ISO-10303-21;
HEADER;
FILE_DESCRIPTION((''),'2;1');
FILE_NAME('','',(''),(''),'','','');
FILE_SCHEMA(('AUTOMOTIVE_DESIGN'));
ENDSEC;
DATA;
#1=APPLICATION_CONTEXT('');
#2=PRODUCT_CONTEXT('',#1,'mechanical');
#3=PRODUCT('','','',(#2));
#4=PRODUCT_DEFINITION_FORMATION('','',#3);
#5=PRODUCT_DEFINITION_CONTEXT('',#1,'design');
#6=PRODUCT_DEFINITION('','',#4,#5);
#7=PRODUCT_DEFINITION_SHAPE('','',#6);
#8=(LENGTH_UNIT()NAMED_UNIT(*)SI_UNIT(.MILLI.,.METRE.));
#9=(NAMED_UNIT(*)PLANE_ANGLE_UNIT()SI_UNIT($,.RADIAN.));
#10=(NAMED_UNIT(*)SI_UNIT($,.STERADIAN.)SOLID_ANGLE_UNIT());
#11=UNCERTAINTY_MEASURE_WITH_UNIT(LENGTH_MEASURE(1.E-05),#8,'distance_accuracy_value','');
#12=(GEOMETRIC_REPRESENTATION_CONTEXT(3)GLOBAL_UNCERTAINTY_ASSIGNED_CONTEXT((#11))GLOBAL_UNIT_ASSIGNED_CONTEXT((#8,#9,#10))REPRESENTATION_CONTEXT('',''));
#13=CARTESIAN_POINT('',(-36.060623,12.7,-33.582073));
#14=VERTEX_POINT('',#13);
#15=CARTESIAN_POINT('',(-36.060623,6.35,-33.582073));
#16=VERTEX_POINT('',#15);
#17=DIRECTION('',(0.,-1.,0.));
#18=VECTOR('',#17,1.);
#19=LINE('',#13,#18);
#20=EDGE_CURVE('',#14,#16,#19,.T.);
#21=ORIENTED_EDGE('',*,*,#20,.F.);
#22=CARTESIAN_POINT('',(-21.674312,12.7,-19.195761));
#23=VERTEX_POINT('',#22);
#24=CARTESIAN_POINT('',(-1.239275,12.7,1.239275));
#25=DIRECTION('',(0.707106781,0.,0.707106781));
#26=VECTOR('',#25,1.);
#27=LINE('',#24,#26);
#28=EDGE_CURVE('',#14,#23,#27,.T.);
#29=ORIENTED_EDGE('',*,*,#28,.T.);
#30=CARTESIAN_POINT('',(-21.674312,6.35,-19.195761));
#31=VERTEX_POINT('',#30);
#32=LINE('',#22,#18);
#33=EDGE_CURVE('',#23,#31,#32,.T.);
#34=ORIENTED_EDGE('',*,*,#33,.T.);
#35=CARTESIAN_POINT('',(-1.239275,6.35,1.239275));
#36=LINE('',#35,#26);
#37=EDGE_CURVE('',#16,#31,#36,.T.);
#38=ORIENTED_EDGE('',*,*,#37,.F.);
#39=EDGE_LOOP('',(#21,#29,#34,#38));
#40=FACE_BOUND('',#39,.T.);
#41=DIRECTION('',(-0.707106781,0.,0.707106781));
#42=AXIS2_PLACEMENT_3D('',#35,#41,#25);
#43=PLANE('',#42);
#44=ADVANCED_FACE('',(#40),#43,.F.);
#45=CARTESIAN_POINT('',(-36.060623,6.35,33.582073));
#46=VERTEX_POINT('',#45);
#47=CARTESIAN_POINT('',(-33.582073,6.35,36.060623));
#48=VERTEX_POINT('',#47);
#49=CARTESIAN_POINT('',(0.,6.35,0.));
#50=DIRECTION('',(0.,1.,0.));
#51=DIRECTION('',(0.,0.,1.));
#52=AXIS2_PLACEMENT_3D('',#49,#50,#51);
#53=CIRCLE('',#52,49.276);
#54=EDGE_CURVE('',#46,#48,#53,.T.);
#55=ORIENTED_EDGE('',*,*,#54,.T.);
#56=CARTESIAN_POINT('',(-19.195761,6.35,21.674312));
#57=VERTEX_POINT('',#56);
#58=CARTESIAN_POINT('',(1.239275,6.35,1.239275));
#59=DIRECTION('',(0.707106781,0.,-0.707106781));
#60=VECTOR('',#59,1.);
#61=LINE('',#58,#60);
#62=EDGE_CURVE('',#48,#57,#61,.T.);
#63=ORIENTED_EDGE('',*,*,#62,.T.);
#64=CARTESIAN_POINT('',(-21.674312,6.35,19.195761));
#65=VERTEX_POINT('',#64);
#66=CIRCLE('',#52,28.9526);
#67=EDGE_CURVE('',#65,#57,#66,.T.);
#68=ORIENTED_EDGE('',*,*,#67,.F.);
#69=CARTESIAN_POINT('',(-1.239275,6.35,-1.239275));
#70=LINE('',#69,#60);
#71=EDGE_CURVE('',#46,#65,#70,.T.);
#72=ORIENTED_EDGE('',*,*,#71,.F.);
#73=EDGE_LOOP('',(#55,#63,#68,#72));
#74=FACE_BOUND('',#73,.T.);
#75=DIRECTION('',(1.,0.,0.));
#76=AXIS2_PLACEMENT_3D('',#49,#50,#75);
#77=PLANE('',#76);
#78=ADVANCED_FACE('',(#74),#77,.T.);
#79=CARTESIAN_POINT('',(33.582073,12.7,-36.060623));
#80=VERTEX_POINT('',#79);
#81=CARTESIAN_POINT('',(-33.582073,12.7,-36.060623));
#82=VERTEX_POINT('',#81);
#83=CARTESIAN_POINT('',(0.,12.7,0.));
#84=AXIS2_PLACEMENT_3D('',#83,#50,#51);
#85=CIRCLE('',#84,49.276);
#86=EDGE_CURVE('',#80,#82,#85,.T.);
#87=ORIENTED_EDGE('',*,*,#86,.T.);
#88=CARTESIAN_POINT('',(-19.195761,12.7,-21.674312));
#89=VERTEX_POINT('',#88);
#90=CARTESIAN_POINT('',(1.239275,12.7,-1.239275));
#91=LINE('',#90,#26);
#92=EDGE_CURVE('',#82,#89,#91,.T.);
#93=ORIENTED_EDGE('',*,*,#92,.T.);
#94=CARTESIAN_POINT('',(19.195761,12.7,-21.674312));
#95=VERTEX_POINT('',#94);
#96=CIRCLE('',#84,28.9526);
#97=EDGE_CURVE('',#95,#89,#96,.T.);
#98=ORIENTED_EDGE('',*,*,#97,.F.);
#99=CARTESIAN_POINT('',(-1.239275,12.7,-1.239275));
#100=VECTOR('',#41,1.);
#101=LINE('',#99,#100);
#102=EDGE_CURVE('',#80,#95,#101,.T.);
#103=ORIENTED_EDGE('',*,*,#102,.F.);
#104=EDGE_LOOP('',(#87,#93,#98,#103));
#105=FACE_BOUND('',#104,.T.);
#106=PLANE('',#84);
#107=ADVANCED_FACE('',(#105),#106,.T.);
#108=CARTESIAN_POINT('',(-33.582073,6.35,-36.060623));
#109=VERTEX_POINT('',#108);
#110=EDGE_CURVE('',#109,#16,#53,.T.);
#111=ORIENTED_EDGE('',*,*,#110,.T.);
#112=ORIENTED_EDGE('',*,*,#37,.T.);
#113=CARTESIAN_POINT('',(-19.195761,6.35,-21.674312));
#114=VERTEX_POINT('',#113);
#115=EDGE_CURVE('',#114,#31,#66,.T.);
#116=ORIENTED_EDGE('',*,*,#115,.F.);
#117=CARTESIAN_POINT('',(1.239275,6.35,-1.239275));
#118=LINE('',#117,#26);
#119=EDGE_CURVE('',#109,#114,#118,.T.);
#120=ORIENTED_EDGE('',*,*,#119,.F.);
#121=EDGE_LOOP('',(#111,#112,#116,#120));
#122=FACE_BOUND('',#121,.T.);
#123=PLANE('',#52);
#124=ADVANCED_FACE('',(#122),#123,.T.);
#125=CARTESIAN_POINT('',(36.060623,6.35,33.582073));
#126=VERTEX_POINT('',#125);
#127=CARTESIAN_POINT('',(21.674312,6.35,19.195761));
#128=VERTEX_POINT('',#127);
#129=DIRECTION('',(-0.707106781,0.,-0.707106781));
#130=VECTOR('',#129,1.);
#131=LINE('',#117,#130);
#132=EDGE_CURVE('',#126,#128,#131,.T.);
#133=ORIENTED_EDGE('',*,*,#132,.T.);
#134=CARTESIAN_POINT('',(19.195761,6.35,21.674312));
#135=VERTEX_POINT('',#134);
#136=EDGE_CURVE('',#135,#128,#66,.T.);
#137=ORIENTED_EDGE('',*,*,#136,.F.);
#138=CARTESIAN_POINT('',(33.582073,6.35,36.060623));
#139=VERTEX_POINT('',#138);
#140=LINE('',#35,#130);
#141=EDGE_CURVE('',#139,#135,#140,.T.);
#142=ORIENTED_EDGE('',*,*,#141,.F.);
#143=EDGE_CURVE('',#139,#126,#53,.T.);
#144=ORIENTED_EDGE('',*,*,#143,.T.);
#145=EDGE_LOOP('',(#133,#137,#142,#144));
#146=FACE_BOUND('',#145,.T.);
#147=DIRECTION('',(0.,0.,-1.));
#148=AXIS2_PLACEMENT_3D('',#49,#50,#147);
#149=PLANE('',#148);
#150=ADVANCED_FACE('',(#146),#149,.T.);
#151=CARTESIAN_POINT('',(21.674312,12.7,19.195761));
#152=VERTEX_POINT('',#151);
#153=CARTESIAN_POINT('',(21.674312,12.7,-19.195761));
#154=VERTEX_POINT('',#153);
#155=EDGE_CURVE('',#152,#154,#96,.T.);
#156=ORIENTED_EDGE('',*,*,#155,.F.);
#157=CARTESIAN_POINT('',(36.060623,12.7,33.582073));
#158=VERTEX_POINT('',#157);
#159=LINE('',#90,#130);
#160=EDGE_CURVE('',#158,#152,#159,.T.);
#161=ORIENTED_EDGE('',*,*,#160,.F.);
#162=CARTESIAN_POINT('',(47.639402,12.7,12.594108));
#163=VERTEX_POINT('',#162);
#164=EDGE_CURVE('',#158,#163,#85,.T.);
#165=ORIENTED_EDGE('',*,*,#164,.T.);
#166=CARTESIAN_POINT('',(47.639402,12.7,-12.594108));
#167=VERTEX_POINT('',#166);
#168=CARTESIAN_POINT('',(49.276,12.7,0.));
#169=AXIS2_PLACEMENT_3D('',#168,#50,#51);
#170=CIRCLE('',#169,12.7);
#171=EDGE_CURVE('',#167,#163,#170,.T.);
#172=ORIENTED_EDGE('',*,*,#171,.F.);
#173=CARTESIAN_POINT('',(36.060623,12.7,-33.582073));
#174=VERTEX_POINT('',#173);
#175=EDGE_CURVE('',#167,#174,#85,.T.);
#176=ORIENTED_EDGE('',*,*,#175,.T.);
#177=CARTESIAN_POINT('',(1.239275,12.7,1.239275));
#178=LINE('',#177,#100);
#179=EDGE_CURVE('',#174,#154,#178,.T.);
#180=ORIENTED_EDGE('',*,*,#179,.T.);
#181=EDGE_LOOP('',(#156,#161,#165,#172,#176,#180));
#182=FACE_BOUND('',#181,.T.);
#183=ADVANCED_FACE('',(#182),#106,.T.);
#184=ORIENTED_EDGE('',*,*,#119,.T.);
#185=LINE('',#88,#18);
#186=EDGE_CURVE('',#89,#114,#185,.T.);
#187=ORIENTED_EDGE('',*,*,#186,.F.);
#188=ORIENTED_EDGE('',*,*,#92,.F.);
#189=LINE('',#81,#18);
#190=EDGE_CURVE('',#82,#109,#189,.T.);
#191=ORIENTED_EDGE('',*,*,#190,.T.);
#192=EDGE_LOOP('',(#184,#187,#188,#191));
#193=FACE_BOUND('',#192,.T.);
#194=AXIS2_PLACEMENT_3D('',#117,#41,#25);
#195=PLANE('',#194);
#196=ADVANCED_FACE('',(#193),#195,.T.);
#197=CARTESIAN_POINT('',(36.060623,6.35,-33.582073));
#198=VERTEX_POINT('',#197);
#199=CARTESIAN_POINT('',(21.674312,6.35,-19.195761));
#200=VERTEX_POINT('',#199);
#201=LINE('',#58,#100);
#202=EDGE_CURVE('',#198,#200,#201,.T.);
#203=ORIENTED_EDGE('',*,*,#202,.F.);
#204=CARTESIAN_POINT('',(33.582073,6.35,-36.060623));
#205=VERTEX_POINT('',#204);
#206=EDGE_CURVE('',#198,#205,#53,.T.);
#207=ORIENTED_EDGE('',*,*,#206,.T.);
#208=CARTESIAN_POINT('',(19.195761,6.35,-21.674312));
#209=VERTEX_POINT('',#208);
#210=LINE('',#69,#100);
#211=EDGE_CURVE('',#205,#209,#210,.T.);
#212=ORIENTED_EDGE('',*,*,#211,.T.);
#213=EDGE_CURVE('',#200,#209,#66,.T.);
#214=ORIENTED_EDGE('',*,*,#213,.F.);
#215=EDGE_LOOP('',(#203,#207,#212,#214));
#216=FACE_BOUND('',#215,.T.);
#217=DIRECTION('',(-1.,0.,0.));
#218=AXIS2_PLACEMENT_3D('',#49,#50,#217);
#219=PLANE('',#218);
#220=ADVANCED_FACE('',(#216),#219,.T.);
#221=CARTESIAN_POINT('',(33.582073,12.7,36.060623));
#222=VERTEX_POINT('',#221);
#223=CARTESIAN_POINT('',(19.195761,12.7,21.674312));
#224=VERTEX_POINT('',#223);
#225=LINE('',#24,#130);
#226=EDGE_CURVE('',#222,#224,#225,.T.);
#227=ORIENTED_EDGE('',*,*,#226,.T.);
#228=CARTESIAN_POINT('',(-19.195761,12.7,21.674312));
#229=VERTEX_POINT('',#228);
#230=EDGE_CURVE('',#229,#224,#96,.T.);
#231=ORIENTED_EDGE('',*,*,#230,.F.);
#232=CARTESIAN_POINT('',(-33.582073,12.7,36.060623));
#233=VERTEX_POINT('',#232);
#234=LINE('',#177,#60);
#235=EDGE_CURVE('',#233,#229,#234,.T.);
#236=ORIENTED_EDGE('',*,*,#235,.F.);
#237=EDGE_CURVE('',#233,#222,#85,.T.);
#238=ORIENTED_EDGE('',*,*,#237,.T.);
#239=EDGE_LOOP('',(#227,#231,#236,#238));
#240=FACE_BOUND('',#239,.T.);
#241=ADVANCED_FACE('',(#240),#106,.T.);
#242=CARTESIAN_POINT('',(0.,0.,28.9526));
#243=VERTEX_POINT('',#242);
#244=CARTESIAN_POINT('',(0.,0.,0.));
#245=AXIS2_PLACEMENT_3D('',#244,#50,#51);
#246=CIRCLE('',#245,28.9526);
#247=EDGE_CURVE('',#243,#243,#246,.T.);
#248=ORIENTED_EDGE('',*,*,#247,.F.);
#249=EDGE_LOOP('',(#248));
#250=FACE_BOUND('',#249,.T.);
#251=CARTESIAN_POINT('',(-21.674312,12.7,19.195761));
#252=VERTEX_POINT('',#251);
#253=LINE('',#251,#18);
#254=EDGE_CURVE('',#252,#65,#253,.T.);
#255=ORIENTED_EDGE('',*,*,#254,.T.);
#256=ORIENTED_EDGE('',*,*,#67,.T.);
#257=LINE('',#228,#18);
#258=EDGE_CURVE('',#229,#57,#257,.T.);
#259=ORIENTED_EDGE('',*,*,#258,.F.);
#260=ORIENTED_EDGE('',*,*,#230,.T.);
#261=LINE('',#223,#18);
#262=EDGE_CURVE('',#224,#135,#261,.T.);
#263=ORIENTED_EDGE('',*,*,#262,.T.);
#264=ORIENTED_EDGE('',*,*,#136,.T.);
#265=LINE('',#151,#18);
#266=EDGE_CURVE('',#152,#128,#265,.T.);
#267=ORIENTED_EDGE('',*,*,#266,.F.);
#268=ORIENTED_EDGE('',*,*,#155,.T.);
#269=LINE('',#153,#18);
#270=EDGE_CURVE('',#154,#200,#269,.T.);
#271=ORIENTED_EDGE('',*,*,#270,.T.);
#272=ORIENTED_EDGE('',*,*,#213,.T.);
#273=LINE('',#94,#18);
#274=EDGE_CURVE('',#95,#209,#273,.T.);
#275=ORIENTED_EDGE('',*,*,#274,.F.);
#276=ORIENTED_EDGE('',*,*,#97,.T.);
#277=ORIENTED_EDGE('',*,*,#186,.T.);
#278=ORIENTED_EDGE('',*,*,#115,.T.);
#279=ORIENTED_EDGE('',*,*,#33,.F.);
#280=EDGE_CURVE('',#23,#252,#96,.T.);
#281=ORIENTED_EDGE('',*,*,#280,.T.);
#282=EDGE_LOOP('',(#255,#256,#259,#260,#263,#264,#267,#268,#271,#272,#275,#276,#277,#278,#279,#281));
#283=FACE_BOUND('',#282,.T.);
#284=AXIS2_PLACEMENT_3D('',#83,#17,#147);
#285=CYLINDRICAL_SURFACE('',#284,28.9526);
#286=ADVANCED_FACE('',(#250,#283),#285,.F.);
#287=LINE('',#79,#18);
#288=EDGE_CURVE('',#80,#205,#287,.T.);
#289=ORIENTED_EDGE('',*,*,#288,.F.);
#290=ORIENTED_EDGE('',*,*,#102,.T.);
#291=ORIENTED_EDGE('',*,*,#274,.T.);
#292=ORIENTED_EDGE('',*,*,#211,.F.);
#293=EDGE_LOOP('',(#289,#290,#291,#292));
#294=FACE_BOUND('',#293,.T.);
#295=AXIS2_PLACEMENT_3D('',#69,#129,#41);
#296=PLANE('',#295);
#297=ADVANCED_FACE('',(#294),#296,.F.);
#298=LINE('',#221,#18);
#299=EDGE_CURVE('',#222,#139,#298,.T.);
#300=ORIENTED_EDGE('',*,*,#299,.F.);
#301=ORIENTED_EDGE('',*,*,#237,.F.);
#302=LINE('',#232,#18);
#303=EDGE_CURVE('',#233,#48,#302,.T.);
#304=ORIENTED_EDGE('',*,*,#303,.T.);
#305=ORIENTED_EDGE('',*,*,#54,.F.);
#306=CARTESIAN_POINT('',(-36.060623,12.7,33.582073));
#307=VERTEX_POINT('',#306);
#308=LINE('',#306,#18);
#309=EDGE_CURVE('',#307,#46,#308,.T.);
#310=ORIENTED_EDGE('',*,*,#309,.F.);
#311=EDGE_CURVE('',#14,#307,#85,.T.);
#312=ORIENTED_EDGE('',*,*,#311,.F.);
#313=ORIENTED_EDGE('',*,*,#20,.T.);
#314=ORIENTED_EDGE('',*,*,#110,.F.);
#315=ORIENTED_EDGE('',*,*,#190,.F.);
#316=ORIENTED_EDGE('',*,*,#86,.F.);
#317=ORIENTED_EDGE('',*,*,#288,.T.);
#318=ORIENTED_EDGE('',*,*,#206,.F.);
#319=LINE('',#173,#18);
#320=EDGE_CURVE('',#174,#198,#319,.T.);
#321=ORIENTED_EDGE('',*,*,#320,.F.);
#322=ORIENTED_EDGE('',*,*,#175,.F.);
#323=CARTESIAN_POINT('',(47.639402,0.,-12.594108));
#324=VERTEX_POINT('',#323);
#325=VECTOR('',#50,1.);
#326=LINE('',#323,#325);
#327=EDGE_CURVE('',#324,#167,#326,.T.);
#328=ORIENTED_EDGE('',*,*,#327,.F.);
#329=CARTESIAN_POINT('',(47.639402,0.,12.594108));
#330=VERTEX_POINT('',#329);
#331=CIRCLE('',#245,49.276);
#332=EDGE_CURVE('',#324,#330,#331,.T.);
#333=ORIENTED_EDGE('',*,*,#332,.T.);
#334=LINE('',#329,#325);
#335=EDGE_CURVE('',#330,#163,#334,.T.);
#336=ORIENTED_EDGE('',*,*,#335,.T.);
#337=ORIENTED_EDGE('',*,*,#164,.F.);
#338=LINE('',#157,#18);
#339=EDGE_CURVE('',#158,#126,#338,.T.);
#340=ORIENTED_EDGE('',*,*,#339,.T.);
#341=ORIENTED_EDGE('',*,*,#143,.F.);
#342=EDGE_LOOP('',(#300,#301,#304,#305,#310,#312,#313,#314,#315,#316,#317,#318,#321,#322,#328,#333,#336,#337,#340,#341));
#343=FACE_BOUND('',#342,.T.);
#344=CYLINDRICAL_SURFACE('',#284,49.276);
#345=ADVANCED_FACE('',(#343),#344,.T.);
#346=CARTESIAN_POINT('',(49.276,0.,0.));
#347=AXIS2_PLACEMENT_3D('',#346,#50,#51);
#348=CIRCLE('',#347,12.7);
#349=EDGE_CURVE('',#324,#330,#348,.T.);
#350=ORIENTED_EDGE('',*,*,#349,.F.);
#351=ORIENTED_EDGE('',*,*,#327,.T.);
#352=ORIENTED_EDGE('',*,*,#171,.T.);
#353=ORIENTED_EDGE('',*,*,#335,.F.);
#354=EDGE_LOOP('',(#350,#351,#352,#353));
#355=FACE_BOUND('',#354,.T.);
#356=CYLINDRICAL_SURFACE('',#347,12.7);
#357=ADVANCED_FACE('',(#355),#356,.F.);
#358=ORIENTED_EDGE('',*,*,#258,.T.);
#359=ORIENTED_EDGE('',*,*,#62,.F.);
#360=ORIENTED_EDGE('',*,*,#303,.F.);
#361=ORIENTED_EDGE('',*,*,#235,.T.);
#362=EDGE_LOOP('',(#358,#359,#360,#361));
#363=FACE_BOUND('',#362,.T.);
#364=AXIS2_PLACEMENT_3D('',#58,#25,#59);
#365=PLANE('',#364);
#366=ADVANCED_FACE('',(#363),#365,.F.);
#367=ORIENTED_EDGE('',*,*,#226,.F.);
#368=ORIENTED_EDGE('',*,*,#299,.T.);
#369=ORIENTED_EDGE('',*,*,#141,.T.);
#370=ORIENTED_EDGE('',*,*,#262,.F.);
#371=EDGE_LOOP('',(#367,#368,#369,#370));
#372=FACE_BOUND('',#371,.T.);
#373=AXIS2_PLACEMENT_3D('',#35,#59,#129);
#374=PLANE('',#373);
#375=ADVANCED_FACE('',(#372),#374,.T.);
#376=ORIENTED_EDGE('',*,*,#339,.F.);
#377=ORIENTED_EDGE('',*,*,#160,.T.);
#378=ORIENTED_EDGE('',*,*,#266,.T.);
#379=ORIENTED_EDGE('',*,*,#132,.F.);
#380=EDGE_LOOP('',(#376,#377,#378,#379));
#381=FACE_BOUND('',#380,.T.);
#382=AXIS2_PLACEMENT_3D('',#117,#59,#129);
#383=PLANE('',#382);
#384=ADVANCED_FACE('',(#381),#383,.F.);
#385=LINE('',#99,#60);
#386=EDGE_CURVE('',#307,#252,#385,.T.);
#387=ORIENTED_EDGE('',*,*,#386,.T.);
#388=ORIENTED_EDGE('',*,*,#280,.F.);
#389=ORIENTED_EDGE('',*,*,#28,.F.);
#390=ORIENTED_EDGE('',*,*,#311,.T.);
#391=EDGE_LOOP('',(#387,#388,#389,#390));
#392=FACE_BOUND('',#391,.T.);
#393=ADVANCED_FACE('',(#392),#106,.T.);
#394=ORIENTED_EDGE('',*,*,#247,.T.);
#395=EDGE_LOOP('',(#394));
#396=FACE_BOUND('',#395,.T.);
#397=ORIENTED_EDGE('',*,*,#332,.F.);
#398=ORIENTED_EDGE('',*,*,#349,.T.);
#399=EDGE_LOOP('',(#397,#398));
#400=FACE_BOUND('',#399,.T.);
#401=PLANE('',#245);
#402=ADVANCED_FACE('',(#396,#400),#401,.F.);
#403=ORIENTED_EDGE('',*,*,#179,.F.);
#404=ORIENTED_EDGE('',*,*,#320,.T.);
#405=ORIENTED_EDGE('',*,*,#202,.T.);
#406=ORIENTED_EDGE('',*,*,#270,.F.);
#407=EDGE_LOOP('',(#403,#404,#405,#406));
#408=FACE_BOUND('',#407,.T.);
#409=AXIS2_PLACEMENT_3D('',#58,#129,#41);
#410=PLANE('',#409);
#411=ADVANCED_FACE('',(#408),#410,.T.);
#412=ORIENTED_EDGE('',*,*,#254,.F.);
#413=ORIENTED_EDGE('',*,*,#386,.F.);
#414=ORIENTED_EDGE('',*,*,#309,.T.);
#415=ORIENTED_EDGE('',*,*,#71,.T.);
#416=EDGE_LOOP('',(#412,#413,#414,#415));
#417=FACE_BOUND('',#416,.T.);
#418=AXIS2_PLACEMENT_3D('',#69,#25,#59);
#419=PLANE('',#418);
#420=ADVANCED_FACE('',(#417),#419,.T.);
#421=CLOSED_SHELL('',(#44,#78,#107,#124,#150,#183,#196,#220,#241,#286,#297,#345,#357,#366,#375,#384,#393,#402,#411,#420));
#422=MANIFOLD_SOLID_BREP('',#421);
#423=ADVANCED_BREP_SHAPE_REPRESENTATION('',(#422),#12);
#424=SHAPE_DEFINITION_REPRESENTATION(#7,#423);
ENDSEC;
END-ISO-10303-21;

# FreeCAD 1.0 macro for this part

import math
import FreeCAD as App
import Part
import Sketcher
from FreeCAD import Vector
Q = App.Units.Quantity

doc = App.newDocument("Part")
body = doc.addObject("PartDesign::Body", "Body")

# Sketch on XZ plane
sketch1 = body.newObject("Sketcher::SketchObject", "Sketch")
sketch1.AttachmentSupport = (doc.getObject("XZ_Plane"), [""])
sketch1.MapMode = "FlatFace"
sketch1.addGeometry(Part.Circle(Vector(0, 0, 0), Vector(0, 0, 1), 49), False)
sketch1.addConstraint(Sketcher.Constraint("Coincident", 0, 3, -1, 1))
sketch1.addConstraint(Sketcher.Constraint("Diameter", 0, Q("3.88 in")))
pad1 = body.newObject("PartDesign::Pad", "Pad")
pad1.Profile = sketch1
pad1.Length = Q("0.5 in")
pad1.Reversed = True

# Sketch on XZ plane
sketch2 = body.newObject("Sketcher::SketchObject", "Sketch001")
sketch2.AttachmentSupport = (doc.getObject("XZ_Plane"), [""])
sketch2.MapMode = "FlatFace"
sketch2.addGeometry(Part.Circle(Vector(0, 0, 0), Vector(0, 0, 1), 29), False)
sketch2.addConstraint(Sketcher.Constraint("Coincident", 0, 3, -1, 1))
sketch2.addConstraint(Sketcher.Constraint("Diameter", 0, 57.9052))
pocket1 = body.newObject("PartDesign::Pocket", "Pocket")
pocket1.Profile = sketch2
pocket1.Type = "ThroughAll"

# Sketch on XZ plane
sketch3 = body.newObject("Sketcher::SketchObject", "Sketch002")
sketch3.AttachmentSupport = (doc.getObject("XZ_Plane"), [""])
sketch3.MapMode = "FlatFace"
sketch3.AttachmentOffset = App.Placement(Vector(0, 0, -0.5 * 25.4), App.Rotation())
sketch3.addGeometry(Part.Circle(Vector(49, 0, 0), Vector(0, 0, 1), 13), False)
sketch3.addConstraint(Sketcher.Constraint("PointOnObject", 0, 3, -1))
sketch3.addConstraint(Sketcher.Constraint("Diameter", 0, Q("1 in")))
sketch3.addConstraint(Sketcher.Constraint("DistanceX", -1, 1, 0, 3, Q("1.94 in")))
pocket2 = body.newObject("PartDesign::Pocket", "Pocket001")
pocket2.Profile = sketch3
pocket2.Type = "ThroughAll"
pocket2.Reversed = True

# Sketch on XZ plane
sketch4 = body.newObject("Sketcher::SketchObject", "Sketch003")
sketch4.AttachmentSupport = (doc.getObject("XZ_Plane"), [""])
sketch4.MapMode = "FlatFace"
sketch4.AttachmentOffset = App.Placement(Vector(0, 0, -0.5 * 25.4), App.Rotation())
sketch4.addGeometry(Part.ArcOfCircle(Part.Circle(Vector(0, 0, 0), Vector(0, 0, 1), 29), math.radians(0), math.radians(222)), False)
sketch4.addGeometry(Part.ArcOfCircle(Part.Circle(Vector(0, 0, 0), Vector(0, 0, 1), 29), math.radians(-132), math.radians(0)), False)
sketch4.addGeometry(Part.LineSegment(Vector(-19.2, -21.7, 0), Vector(-34.9, -37.4, 0)), False)
sketch4.addGeometry(Part.LineSegment(Vector(-34.9, -37.4, 0), Vector(-37.4, -34.9, 0)), False)
sketch4.addGeometry(Part.LineSegment(Vector(-37.4, -34.9, 0), Vector(-21.7, -19.2, 0)), False)
sketch4.addConstraint(Sketcher.Constraint("Tangent", 0, 1, 1, 2))
sketch4.addConstraint(Sketcher.Constraint("Coincident", 1, 1, 2, 1))
sketch4.addConstraint(Sketcher.Constraint("Coincident", 2, 2, 3, 1))
sketch4.addConstraint(Sketcher.Constraint("Coincident", 3, 2, 4, 1))
sketch4.addConstraint(Sketcher.Constraint("Coincident", 4, 2, 0, 2))
sketch4.addConstraint(Sketcher.Constraint("Coincident", 0, 3, -1, 1))
sketch4.addConstraint(Sketcher.Constraint("Equal", 0, 1))
sketch4.addConstraint(Sketcher.Constraint("PointOnObject", 0, 1, -1))
sketch4.addConstraint(Sketcher.Constraint("Perpendicular", 2, 3))
sketch4.addConstraint(Sketcher.Constraint("Perpendicular", 3, 4))
sketch4.addConstraint(Sketcher.Constraint("Equal", 2, 4))
sketch4.addConstraint(Sketcher.Constraint("Angle", 2, Q("-135 deg")))
sketch4.addConstraint(Sketcher.Constraint("Radius", 0, 28.9526))
sketch4.addConstraint(Sketcher.Constraint("Distance", 3, Q("0.138 in")))
sketch4.addConstraint(Sketcher.Constraint("Distance", 2, 22.205294))
pocket3 = body.newObject("PartDesign::Pocket", "Pocket002")
pocket3.Profile = sketch4
pocket3.Length = Q("0.25 in")
pocket3.Reversed = True
doc.recompute()

polarpattern = body.newObject("PartDesign::PolarPattern", "PolarPattern")
polarpattern.Originals = [pocket3]
polarpattern.Axis = (doc.getObject("Y_Axis"), [""])
polarpattern.Angle = 360
polarpattern.Occurrences = 4
body.Tip = polarpattern

doc.recompute()
